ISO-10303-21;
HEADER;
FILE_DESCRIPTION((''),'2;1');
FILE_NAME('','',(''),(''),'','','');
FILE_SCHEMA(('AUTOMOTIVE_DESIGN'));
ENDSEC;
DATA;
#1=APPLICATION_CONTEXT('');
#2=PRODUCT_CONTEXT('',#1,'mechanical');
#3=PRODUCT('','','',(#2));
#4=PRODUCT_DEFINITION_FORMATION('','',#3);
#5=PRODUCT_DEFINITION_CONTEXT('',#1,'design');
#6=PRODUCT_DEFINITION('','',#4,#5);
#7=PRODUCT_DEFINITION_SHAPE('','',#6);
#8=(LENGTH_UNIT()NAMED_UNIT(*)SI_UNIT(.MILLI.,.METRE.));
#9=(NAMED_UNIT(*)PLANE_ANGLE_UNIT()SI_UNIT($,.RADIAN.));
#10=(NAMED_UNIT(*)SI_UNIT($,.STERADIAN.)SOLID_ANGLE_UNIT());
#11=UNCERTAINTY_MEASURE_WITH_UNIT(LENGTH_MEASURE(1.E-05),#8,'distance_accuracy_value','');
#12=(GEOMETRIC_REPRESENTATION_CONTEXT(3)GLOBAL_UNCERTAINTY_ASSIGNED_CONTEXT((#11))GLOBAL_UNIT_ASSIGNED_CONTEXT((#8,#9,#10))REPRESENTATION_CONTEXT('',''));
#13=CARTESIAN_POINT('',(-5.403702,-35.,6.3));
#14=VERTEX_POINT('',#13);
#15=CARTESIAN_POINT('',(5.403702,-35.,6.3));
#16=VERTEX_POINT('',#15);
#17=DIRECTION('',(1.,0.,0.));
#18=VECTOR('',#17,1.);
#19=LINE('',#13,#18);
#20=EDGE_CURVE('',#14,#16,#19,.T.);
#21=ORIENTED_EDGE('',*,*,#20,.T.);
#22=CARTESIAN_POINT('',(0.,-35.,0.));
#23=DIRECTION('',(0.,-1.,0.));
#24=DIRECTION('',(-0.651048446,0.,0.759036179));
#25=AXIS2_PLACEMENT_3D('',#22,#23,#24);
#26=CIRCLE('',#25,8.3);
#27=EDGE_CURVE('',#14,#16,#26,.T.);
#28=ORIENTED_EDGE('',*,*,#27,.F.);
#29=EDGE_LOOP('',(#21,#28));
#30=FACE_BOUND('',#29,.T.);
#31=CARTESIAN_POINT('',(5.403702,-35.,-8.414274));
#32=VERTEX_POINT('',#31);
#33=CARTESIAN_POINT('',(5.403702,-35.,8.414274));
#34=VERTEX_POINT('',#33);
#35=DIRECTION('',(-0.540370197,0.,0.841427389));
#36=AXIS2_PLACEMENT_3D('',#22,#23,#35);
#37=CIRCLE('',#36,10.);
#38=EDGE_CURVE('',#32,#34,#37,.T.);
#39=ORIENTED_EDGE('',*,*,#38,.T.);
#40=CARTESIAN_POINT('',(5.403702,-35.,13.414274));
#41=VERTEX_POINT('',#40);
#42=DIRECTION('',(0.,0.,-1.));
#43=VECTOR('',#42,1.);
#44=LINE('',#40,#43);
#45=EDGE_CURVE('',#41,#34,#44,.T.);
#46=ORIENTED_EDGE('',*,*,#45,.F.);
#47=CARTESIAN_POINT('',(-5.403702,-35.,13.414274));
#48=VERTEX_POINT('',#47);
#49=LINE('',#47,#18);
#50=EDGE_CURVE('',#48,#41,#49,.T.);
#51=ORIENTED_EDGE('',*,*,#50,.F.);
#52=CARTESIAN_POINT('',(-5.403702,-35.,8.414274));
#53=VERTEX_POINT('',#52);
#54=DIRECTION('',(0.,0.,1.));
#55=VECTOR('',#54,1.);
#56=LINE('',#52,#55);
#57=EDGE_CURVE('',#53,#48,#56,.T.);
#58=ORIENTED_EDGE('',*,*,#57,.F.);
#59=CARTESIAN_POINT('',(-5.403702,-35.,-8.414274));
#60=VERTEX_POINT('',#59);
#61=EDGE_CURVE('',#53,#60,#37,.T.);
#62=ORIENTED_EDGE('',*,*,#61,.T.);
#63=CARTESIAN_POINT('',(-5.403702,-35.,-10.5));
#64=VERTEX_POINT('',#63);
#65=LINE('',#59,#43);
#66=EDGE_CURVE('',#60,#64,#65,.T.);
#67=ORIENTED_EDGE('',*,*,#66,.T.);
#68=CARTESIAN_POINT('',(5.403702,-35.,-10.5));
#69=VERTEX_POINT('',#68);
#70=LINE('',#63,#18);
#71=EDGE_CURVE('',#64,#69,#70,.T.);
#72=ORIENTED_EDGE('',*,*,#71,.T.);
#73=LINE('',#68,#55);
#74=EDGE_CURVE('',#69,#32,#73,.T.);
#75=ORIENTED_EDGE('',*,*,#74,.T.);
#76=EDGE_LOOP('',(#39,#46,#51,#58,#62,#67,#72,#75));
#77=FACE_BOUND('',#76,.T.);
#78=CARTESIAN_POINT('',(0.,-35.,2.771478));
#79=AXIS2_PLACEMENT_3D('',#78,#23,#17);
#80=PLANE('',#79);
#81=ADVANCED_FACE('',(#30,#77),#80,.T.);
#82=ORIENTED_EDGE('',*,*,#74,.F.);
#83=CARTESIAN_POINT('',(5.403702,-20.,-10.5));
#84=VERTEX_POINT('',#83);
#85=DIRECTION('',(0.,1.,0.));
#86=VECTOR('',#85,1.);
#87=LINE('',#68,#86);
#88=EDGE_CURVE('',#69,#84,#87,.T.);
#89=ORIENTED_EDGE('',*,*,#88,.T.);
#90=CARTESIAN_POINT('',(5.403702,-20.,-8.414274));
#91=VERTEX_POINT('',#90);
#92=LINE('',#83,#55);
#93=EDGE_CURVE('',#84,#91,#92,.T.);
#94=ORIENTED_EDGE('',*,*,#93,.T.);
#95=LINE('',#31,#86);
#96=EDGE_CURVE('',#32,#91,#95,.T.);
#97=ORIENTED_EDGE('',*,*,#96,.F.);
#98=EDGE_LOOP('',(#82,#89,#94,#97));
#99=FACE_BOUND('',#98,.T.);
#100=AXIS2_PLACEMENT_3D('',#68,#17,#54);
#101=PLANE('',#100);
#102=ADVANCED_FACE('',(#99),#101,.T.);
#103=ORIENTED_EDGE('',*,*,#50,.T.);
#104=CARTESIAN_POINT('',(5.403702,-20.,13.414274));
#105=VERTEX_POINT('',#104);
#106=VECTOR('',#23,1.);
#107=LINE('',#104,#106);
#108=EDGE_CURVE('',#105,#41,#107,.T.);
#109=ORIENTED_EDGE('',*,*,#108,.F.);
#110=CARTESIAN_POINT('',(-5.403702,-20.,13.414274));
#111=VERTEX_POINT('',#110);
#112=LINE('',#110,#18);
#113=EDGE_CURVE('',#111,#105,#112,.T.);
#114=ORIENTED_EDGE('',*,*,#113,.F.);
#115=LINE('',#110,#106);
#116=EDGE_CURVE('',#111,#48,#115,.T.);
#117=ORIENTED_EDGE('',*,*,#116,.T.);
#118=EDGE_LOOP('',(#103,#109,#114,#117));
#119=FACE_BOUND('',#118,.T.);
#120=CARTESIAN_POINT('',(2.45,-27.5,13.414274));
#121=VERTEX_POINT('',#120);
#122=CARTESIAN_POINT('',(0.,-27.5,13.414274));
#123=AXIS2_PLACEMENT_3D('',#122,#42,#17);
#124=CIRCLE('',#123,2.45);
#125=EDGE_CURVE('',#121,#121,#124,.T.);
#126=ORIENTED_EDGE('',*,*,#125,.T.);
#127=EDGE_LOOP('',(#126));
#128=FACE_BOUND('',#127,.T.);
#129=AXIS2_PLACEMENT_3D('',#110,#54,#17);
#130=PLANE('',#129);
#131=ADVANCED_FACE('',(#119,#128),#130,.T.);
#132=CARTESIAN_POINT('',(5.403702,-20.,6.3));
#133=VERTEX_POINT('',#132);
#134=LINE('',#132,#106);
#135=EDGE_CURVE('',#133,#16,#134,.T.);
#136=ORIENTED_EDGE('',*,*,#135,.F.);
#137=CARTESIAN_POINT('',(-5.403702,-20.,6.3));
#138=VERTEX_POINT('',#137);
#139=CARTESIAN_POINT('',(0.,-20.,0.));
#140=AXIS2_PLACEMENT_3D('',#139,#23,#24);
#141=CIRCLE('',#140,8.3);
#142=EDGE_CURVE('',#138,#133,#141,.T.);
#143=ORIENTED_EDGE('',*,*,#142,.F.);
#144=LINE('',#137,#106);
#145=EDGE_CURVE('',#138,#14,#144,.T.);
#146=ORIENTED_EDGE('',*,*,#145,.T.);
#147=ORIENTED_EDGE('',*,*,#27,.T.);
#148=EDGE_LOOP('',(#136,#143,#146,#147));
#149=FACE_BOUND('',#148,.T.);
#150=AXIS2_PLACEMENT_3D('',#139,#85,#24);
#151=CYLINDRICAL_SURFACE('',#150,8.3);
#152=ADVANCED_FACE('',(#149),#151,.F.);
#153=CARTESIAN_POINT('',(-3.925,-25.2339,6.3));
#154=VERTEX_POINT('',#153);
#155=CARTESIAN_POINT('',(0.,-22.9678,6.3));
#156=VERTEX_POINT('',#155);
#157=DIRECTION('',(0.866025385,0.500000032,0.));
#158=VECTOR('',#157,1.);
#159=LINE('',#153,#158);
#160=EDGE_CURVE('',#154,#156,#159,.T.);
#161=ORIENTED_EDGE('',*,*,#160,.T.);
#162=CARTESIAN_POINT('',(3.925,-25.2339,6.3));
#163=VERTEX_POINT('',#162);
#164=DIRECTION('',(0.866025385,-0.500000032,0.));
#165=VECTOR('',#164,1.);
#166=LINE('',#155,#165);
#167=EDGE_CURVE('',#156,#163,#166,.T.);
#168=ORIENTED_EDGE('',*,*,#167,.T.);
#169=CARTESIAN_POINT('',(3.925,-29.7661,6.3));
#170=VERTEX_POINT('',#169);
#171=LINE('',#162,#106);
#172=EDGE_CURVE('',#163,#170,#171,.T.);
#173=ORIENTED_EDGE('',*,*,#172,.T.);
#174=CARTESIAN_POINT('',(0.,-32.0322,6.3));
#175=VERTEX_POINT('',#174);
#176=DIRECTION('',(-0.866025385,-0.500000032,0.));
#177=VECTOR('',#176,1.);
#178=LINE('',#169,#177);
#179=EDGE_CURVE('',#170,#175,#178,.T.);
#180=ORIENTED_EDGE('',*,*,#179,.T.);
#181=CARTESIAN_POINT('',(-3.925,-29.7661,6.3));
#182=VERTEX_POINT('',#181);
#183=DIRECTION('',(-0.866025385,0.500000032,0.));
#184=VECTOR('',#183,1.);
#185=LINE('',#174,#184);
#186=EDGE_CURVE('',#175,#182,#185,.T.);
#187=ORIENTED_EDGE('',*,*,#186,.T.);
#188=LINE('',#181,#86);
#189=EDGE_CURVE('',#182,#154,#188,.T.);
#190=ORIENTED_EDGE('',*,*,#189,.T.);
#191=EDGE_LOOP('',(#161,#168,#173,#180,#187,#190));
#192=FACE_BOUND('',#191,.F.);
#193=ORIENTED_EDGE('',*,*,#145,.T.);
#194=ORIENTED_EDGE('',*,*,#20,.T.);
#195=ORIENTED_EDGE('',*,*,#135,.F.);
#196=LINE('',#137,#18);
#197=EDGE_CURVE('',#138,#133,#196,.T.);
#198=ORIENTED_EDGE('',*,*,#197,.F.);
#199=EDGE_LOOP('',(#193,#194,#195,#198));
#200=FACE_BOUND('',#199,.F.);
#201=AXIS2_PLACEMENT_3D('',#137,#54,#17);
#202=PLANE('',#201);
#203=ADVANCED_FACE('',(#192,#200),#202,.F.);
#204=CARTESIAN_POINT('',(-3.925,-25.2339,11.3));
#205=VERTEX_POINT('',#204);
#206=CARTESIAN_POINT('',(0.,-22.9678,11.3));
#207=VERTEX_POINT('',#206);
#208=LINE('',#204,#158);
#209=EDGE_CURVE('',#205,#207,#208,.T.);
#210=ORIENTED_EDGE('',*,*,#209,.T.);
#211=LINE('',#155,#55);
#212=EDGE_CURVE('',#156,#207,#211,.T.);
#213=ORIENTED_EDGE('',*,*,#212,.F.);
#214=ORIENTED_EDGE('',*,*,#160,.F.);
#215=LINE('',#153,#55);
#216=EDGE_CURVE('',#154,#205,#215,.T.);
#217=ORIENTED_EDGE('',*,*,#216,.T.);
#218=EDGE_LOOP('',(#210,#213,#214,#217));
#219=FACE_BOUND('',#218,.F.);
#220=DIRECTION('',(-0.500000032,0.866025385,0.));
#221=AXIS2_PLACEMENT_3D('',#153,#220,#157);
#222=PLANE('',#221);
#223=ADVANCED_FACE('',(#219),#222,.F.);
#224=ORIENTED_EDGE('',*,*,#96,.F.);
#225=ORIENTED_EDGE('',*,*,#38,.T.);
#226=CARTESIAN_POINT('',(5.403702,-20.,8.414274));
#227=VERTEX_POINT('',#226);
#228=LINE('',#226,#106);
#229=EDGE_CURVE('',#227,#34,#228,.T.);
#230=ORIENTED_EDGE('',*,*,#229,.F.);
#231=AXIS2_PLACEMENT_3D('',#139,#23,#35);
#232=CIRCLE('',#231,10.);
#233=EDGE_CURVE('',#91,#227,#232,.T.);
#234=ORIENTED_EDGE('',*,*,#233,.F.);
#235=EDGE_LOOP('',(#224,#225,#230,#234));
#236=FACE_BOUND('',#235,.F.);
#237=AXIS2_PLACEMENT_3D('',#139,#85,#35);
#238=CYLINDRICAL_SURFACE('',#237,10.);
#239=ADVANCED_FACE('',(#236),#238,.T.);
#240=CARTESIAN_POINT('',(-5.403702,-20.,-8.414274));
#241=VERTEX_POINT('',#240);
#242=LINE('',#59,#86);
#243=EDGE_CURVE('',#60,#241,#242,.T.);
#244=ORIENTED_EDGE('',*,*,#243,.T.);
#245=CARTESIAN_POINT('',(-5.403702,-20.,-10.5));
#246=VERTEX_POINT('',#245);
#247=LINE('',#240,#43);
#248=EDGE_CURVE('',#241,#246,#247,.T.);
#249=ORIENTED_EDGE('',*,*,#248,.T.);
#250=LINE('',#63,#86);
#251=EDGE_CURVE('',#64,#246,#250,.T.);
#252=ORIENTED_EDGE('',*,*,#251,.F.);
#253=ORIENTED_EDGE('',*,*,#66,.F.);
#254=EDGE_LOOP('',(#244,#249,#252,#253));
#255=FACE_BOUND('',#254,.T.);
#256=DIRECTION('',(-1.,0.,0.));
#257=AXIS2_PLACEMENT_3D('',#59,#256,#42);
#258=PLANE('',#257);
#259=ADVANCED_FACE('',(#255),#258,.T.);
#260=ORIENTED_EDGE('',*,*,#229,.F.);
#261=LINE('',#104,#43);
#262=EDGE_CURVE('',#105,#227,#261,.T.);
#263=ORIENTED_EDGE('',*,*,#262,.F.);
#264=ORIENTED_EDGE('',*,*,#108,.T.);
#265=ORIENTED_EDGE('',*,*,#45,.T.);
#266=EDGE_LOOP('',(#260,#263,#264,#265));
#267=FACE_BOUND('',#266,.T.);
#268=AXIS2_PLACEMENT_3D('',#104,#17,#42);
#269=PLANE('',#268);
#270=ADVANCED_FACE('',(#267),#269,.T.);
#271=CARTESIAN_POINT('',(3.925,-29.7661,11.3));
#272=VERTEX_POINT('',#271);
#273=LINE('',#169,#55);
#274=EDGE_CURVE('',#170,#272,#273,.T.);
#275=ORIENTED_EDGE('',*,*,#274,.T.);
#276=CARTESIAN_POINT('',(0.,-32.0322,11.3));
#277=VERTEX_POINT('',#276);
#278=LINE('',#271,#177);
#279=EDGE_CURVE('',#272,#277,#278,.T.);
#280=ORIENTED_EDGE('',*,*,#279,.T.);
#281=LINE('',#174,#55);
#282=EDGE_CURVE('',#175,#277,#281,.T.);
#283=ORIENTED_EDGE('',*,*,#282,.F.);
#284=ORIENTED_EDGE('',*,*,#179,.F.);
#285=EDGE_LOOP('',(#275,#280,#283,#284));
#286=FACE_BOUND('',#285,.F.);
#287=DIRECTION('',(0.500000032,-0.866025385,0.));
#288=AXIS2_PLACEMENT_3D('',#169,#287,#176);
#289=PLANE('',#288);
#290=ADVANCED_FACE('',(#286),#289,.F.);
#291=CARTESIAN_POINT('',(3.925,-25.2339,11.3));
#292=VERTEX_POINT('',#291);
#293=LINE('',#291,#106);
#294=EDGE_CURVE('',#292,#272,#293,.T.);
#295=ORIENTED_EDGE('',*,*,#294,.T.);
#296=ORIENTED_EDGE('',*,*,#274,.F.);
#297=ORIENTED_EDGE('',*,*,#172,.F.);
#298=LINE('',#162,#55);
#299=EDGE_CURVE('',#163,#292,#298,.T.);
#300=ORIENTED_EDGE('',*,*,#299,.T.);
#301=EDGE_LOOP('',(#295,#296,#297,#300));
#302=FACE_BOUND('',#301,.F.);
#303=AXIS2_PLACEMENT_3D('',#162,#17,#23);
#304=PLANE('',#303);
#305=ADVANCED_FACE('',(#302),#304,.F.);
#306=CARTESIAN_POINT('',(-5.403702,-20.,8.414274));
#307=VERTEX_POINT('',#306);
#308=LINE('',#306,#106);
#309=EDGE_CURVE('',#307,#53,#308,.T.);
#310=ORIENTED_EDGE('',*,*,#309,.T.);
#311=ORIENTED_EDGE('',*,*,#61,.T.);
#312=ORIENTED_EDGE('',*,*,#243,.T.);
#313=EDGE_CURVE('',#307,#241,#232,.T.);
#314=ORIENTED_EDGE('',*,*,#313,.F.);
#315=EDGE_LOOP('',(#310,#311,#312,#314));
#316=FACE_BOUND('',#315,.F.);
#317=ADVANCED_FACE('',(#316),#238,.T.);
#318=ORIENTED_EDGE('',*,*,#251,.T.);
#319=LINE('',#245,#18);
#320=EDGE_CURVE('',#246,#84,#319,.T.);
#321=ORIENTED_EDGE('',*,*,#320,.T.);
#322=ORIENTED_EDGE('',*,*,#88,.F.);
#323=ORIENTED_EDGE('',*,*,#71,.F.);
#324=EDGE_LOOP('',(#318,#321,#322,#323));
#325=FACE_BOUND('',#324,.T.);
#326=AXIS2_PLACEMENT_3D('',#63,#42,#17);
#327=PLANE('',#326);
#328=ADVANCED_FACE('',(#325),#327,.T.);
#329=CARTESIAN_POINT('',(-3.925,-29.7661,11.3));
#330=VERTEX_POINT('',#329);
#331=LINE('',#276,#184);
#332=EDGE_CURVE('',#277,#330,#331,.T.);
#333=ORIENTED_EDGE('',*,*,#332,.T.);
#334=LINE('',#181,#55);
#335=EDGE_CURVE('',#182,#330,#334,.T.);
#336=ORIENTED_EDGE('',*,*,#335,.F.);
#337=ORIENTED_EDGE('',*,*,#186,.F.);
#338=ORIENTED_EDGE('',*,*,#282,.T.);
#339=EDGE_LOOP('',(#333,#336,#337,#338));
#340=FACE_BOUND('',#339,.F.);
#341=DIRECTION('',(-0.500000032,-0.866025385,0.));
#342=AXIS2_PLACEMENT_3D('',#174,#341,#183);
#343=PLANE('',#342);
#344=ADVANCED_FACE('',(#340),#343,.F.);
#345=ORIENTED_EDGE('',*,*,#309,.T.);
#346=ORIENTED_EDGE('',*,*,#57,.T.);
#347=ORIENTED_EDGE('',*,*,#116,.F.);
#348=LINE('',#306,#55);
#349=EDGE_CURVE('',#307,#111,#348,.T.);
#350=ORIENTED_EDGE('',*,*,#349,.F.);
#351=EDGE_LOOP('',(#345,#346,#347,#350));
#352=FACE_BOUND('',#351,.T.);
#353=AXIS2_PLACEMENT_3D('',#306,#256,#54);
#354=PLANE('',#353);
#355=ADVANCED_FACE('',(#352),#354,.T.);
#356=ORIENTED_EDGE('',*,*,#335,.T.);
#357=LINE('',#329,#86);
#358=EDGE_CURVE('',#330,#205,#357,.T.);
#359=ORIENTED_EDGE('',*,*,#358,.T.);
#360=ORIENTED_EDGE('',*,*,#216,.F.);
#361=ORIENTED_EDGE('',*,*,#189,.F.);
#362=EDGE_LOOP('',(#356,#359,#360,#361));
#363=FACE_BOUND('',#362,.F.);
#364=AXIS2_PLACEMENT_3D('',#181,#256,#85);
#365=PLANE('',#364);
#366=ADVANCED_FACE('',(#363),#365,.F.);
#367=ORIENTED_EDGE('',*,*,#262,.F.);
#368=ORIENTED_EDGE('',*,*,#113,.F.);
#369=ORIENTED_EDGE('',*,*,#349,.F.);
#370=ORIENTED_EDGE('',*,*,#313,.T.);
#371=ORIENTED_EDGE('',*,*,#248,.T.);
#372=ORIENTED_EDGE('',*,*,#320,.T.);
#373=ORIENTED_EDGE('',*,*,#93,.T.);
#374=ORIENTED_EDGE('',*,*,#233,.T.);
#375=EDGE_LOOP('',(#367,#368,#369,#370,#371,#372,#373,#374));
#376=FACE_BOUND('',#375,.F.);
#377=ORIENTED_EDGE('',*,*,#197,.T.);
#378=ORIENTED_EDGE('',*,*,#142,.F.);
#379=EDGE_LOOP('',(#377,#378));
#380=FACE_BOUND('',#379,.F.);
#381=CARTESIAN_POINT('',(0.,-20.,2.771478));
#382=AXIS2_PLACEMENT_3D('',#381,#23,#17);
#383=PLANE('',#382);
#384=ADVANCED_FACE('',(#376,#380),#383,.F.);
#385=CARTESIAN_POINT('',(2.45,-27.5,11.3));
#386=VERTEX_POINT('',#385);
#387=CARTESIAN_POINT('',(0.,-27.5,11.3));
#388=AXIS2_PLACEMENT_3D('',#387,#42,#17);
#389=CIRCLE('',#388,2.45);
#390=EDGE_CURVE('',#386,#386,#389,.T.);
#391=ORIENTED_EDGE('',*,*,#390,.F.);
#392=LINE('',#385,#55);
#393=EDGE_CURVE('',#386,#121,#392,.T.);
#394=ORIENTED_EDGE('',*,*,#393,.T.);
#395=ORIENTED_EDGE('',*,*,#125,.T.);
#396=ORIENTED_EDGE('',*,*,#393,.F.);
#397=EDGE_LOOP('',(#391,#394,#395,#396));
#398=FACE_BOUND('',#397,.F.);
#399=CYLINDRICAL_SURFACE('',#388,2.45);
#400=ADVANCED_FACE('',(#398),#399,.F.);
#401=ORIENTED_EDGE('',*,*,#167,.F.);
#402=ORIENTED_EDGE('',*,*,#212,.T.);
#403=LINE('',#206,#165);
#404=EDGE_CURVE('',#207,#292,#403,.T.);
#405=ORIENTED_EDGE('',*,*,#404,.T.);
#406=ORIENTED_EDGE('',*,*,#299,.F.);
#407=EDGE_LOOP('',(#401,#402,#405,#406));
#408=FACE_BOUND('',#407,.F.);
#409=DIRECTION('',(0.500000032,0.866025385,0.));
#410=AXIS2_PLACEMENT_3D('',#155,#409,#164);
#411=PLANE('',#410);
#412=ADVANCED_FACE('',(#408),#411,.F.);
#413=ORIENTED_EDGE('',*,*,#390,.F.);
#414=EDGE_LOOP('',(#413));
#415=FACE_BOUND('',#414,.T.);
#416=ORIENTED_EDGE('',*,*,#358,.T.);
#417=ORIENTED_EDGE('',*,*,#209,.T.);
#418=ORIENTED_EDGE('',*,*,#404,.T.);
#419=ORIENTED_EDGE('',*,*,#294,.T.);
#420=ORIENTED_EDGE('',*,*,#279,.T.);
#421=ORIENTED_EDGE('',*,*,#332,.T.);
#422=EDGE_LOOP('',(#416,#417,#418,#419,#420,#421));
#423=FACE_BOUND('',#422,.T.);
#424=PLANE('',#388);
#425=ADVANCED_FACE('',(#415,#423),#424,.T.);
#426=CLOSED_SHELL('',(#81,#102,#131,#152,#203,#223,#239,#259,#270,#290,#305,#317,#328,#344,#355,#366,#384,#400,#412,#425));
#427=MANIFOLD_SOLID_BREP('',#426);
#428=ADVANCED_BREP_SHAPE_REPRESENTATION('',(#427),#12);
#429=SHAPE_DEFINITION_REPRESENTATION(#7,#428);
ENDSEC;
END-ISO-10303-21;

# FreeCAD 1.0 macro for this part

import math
import FreeCAD as App
import Part
import Sketcher
from FreeCAD import Vector
Q = App.Units.Quantity


def add_polygon(sketch, points):
    """Adds a closed chain of lines whose ends are joined by coincident constraints."""
    first, n = sketch.GeometryCount, len(points)
    for a, b in zip(points, points[1:] + points[:1]):
        sketch.addGeometry(Part.LineSegment(App.Vector(*a, 0), App.Vector(*b, 0)), False)
    for i in range(n):
        sketch.addConstraint(Sketcher.Constraint("Coincident", first + i, 2, first + (i + 1) % n, 1))

doc = App.newDocument("Part")
body = doc.addObject("PartDesign::Body", "Body")

sketch1 = body.newObject("Sketcher::SketchObject", "Sketch")
sketch1.AttachmentSupport = (doc.getObject("XZ_Plane"), [""])
sketch1.MapMode = "FlatFace"
sketch1.AttachmentOffset = App.Placement(Vector(0, 0, 20), App.Rotation())
sketch1.addGeometry([
    Part.ArcOfCircle(Part.Circle(Vector(0, 0, 0), Vector(0, 0, 1), 10), math.radians(122.708843), math.radians(417.291157)),
    Part.LineSegment(Vector(5.403702, 8.414274, 0), Vector(5.403702, 13.414274, 0)),
    Part.LineSegment(Vector(5.403702, 13.414274, 0), Vector(-5.403702, 13.414274, 0)),
    Part.LineSegment(Vector(-5.403702, 13.414274, 0), Vector(-5.403702, 8.414274, 0)),
    Part.ArcOfCircle(Part.Circle(Vector(0, 0, 0), Vector(0, 0, 1), 8.3), math.radians(130.620697), math.radians(409.379303)),
    Part.LineSegment(Vector(-5.403702, 6.3, 0), Vector(5.403702, 6.3, 0)),
], False)
sketch1.addConstraint([
    Sketcher.Constraint("Coincident", 0, 2, 1, 1),
    Sketcher.Constraint("Coincident", 1, 2, 2, 1),
    Sketcher.Constraint("Coincident", 2, 2, 3, 1),
    Sketcher.Constraint("Coincident", 3, 2, 0, 1),
    Sketcher.Constraint("Coincident", 4, 1, 5, 1),
    Sketcher.Constraint("Coincident", 5, 2, 4, 2),
    Sketcher.Constraint("Vertical", 1),
    Sketcher.Constraint("Horizontal", 2),
    Sketcher.Constraint("Vertical", 3),
    Sketcher.Constraint("Horizontal", 5),
    Sketcher.Constraint("Coincident", 0, 3, -1, 1),
    Sketcher.Constraint("Coincident", 4, 3, -1, 1),
    Sketcher.Constraint("Horizontal", 0, 2, 3, 2),
    Sketcher.Constraint("Vertical", 3, 2, 4, 1),
    Sketcher.Constraint("Radius", 0, 10.0),
    Sketcher.Constraint("Radius", 4, 8.3),
    Sketcher.Constraint("DistanceY", 1, 1, 1, 2, 5.0),
    Sketcher.Constraint("DistanceY", -1, 1, 4, 1, 6.3),
])
pad1 = body.newObject("PartDesign::Pad", "Pad")
pad1.Profile = sketch1
pad1.Length = 15

sketch2 = body.newObject("Sketcher::SketchObject", "Sketch001")
sketch2.AttachmentSupport = (doc.getObject("XY_Plane"), [""])
sketch2.MapMode = "FlatFace"
sketch2.AttachmentOffset = App.Placement(Vector(0, 0, 6.3), App.Rotation())
add_polygon(sketch2, [(-3.925, -29.7661), (-3.925, -25.2339), (0, -22.9678), (3.925, -25.2339), (3.925, -29.7661), (0, -32.0322)])
sketch2.addConstraint([
    Sketcher.Constraint("Vertical", 0),
    Sketcher.Constraint("Vertical", 3),
    Sketcher.Constraint("Symmetric", 0, 2, 2, 2, -2),
    Sketcher.Constraint("PointOnObject", 1, 2, -2),
    Sketcher.Constraint("PointOnObject", 4, 2, -2),
    Sketcher.Constraint("Parallel", 1, 4),
    Sketcher.Constraint("Parallel", 2, 5),
    Sketcher.Constraint("Angle", 1, Q("30.000002 deg")),
    Sketcher.Constraint("DistanceX", 0, 2, 2, 2, 7.85),
    Sketcher.Constraint("DistanceY", 0, 1, 0, 2, 4.5322),
    Sketcher.Constraint("DistanceY", 0, 2, -1, 1, 25.2339),
])
pocket1 = body.newObject("PartDesign::Pocket", "Pocket")
pocket1.Profile = sketch2
pocket1.Length = 5
pocket1.Reversed = True

sketch3 = body.newObject("Sketcher::SketchObject", "Sketch002")
sketch3.AttachmentSupport = (doc.getObject("XY_Plane"), [""])
sketch3.MapMode = "FlatFace"
sketch3.AttachmentOffset = App.Placement(Vector(0, 0, 11.3), App.Rotation())
sketch3.addGeometry(Part.Circle(Vector(0, -27.5, 0), Vector(0, 0, 1), 2.45), False)
sketch3.addConstraint([
    Sketcher.Constraint("PointOnObject", 0, 3, -2),
    Sketcher.Constraint("Diameter", 0, 4.9),
    Sketcher.Constraint("DistanceY", 0, 3, -1, 1, 27.5),
])
pocket2 = body.newObject("PartDesign::Pocket", "Pocket001")
pocket2.Profile = sketch3
pocket2.Type = "ThroughAll"
pocket2.Reversed = True

sketch4 = body.newObject("Sketcher::SketchObject", "Sketch003")
sketch4.AttachmentSupport = (doc.getObject("XZ_Plane"), [""])
sketch4.MapMode = "FlatFace"
sketch4.AttachmentOffset = App.Placement(Vector(0, 0, 35), App.Rotation())
sketch4.addGeometry([
    Part.LineSegment(Vector(-5.403702, -8.414274, 0), Vector(-5.403702, -10.5, 0)),
    Part.LineSegment(Vector(-5.403702, -10.5, 0), Vector(5.403702, -10.5, 0)),
    Part.LineSegment(Vector(5.403702, -10.5, 0), Vector(5.403702, -8.414274, 0)),
    Part.ArcOfCircle(Part.Circle(Vector(0, 0.000001, 0), Vector(0, 0, 1), 10.000001), math.radians(-122.708841), math.radians(-57.291159)),
], False)
sketch4.addConstraint([
    Sketcher.Constraint("Coincident", 0, 2, 1, 1),
    Sketcher.Constraint("Coincident", 1, 2, 2, 1),
    Sketcher.Constraint("Coincident", 2, 2, 3, 2),
    Sketcher.Constraint("Coincident", 3, 1, 0, 1),
    Sketcher.Constraint("Vertical", 0),
    Sketcher.Constraint("Horizontal", 1),
    Sketcher.Constraint("Vertical", 2),
    Sketcher.Constraint("Coincident", 3, 3, -1, 1),
    Sketcher.Constraint("Horizontal", 2, 2, 3, 1),
    Sketcher.Constraint("Radius", 3, 10.000001),
    Sketcher.Constraint("DistanceY", 0, 2, -1, 1, 10.5),
    Sketcher.Constraint("DistanceX", 3, 1, -1, 1, 5.403702),
])
pad2 = body.newObject("PartDesign::Pad", "Pad001")
pad2.Profile = sketch4
pad2.Length = 15
pad2.Reversed = True

doc.recompute()
